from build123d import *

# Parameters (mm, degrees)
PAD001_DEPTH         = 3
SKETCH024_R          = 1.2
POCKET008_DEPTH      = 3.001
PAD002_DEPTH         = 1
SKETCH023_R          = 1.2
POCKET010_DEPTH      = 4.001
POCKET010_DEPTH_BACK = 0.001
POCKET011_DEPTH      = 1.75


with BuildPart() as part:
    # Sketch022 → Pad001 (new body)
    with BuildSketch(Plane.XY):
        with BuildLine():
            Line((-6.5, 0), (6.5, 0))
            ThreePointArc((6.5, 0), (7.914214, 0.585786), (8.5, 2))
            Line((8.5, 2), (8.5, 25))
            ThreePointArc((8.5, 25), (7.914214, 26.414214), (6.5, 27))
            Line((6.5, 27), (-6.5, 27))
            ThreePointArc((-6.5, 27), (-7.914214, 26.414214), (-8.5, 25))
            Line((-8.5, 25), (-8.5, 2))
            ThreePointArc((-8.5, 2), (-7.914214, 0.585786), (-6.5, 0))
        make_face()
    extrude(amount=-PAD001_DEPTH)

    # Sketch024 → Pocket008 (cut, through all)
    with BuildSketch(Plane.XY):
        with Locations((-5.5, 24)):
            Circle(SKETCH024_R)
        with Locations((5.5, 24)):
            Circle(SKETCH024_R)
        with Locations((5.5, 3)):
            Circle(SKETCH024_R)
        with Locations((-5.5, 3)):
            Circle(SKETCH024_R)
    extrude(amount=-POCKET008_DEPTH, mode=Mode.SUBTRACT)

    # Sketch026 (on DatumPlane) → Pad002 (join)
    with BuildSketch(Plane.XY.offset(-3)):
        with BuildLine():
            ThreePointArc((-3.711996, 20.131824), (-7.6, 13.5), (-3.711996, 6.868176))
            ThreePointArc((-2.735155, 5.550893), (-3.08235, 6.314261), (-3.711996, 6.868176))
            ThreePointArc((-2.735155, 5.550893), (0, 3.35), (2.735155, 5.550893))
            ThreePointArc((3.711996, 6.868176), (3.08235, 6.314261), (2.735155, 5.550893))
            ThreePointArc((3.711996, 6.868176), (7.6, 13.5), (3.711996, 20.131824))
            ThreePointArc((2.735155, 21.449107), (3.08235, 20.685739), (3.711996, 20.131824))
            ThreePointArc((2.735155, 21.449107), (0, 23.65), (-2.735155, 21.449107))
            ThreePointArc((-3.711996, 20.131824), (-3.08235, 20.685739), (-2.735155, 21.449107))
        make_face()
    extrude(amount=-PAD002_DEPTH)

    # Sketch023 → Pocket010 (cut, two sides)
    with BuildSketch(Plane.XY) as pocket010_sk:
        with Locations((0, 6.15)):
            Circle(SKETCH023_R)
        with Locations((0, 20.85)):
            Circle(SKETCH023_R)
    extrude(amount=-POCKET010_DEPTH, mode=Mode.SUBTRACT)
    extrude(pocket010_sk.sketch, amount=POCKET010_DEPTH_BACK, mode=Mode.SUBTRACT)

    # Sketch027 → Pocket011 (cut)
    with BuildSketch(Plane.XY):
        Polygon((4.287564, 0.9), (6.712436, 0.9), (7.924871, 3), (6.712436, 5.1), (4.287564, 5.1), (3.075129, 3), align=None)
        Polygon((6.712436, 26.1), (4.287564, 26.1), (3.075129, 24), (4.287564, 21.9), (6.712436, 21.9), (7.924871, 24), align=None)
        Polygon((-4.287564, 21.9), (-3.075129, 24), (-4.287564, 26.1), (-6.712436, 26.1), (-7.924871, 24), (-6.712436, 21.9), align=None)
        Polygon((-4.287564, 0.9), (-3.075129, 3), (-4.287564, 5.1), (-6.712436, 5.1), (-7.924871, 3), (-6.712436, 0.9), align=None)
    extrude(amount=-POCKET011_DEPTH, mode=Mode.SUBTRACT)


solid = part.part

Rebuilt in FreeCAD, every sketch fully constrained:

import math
import FreeCAD as App
import Part
import Sketcher

V = App.Vector
Q = App.Units.Quantity

doc = App.newDocument("Part")
params = doc.addObject("Spreadsheet::Sheet", "Params")
for row, (alias, value) in enumerate([
    ("sketch1_radius", "1.999999 mm"),
    ("sketch1_width", "13 mm"),
    ("sketch1_height", "23 mm"),
    ("pad1_length", "3 mm"),
    ("sketch2_diameter", "2.4 mm"),
    ("sketch3_radius", "2 mm"),
    ("sketch3_radius2", "7.6 mm"),
    ("sketch3_radius3", "2.8 mm"),
    ("pad2_length", "1 mm"),
    ("sketch4_diameter", "2.4 mm"),
    ("pocket3_length", "1.75 mm"),
], start=1):
    params.set(f"A{row}", alias)
    params.set(f"B{row}", "=" + value)
    params.setAlias(f"B{row}", alias)

body = doc.addObject("PartDesign::Body", "Body")

# Sketch on XY plane
sketch1 = doc.addObject("Sketcher::SketchObject", "Sketch")
body.addObject(sketch1)
sketch1.AttachmentSupport = (doc.XY_Plane, [""])
sketch1.MapMode = "FlatFace"
sketch1.addGeometry([
    Part.LineSegment(V(-6.5, 0, 0), V(6.5, 0, 0)),  # 0
    Part.ArcOfCircle(Part.Circle(V(6.5, 2, 0), V(0, 0, 1), 2), math.radians(-90), math.radians(0)),  # 1
    Part.LineSegment(V(8.5, 2, 0), V(8.5, 25, 0)),  # 2
    Part.ArcOfCircle(Part.Circle(V(6.5, 25, 0), V(0, 0, 1), 2), math.radians(0), math.radians(90)),  # 3
    Part.LineSegment(V(6.5, 27, 0), V(-6.5, 27, 0)),  # 4
    Part.ArcOfCircle(Part.Circle(V(-6.5, 25, 0), V(0, 0, 1), 2), math.radians(90), math.radians(180)),  # 5
    Part.LineSegment(V(-8.5, 25, 0), V(-8.5, 2, 0)),  # 6
    Part.ArcOfCircle(Part.Circle(V(-6.5, 2, 0), V(0, 0, 1), 2), math.radians(180), math.radians(270)),  # 7
], False)
sketch1.addConstraint([
    Sketcher.Constraint("Tangent", 0, 2, 1, 1),
    Sketcher.Constraint("Tangent", 1, 2, 2, 1),
    Sketcher.Constraint("Tangent", 2, 2, 3, 1),
    Sketcher.Constraint("Tangent", 3, 2, 4, 1),
    Sketcher.Constraint("Tangent", 4, 2, 5, 1),
    Sketcher.Constraint("Tangent", 5, 2, 6, 1),
    Sketcher.Constraint("Tangent", 6, 2, 7, 1),
    Sketcher.Constraint("Tangent", 7, 2, 0, 1),
    Sketcher.Constraint("Horizontal", 0),
    Sketcher.Constraint("Vertical", 2),
    Sketcher.Constraint("Horizontal", 4),
    Sketcher.Constraint("Vertical", 6),
    Sketcher.Constraint("Equal", 1, 3),
    Sketcher.Constraint("Equal", 3, 5),
    Sketcher.Constraint("Equal", 5, 7),
    Sketcher.Constraint("Symmetric", 0, 2, 7, 2, -1, 1),
    Sketcher.Constraint("Radius", 1, 1.999999),
    Sketcher.Constraint("DistanceX", 0, 1, 0, 2, 13.0),
    Sketcher.Constraint("DistanceY", 2, 1, 2, 2, 23.0),
])
sketch1.setExpression("Constraints[16]", "Params.sketch1_radius")
sketch1.setExpression("Constraints[17]", "Params.sketch1_width")
sketch1.setExpression("Constraints[18]", "Params.sketch1_height")
pad1 = doc.addObject("PartDesign::Pad", "Pad")
body.addObject(pad1)
pad1.Profile = sketch1
pad1.setExpression("Length", "Params.pad1_length")
pad1.Reversed = True

# Sketch on XY plane
sketch2 = doc.addObject("Sketcher::SketchObject", "Sketch001")
body.addObject(sketch2)
sketch2.AttachmentSupport = (doc.XY_Plane, [""])
sketch2.MapMode = "FlatFace"
sketch2.addGeometry([
    Part.Circle(V(-5.5, 24, 0), V(0, 0, 1), 1.2),
    Part.Circle(V(5.5, 24, 0), V(0, 0, 1), 1.2),
    Part.Circle(V(5.5, 3, 0), V(0, 0, 1), 1.2),
    Part.Circle(V(-5.5, 3, 0), V(0, 0, 1), 1.2),
], False)
sketch2.addConstraint([
    Sketcher.Constraint("Equal", 0, 1),
    Sketcher.Constraint("Equal", 1, 2),
    Sketcher.Constraint("Equal", 2, 3),
    Sketcher.Constraint("Symmetric", 0, 3, 1, 3, -2),
    Sketcher.Constraint("Symmetric", 2, 3, 3, 3, -2),
    Sketcher.Constraint("Vertical", 1, 3, 2, 3),
    Sketcher.Constraint("Diameter", 0, 2.4),
    Sketcher.Constraint("DistanceY", -1, 1, 0, 3, 24.0),
    Sketcher.Constraint("DistanceY", -1, 1, 2, 3, 3.0),
    Sketcher.Constraint("DistanceX", 0, 3, 1, 3, 11.0),
])
sketch2.setExpression("Constraints[6]", "Params.sketch2_diameter")
pocket1 = doc.addObject("PartDesign::Pocket", "Pocket")
body.addObject(pocket1)
pocket1.Profile = sketch2
pocket1.Type = "ThroughAll"

# Sketch on XY plane
sketch3 = doc.addObject("Sketcher::SketchObject", "Sketch002")
body.addObject(sketch3)
sketch3.AttachmentSupport = (doc.XY_Plane, [""])
sketch3.MapMode = "FlatFace"
sketch3.AttachmentOffset = App.Placement(V(0, 0, -3), App.Rotation())
sketch3.addGeometry([
    Part.ArcOfCircle(Part.Circle(V(0, 13.5, 0), V(0, 0, 1), 7.6), math.radians(119), math.radians(241)),  # 0
    Part.ArcOfCircle(Part.Circle(V(-4.7, 5.1, 0), V(0, 0, 1), 2), math.radians(12), math.radians(61)),  # 1
    Part.ArcOfCircle(Part.Circle(V(0, 6.2, 0), V(0, 0, 1), 2.8), math.radians(-168), math.radians(-12)),  # 2
    Part.ArcOfCircle(Part.Circle(V(4.7, 5.1, 0), V(0, 0, 1), 2), math.radians(119), math.radians(168)),  # 3
    Part.ArcOfCircle(Part.Circle(V(0, 13.5, 0), V(0, 0, 1), 7.6), math.radians(-61), math.radians(61)),  # 4
    Part.ArcOfCircle(Part.Circle(V(4.7, 21.9, 0), V(0, 0, 1), 2), math.radians(-168), math.radians(-119)),  # 5
    Part.ArcOfCircle(Part.Circle(V(0, 20.8, 0), V(0, 0, 1), 2.8), math.radians(12), math.radians(168)),  # 6
    Part.ArcOfCircle(Part.Circle(V(-4.7, 21.9, 0), V(0, 0, 1), 2), math.radians(-61), math.radians(-12)),  # 7
], False)
sketch3.addConstraint([
    Sketcher.Constraint("Tangent", 0, 2, 1, 2),
    Sketcher.Constraint("Tangent", 1, 1, 2, 1),
    Sketcher.Constraint("Tangent", 2, 2, 3, 2),
    Sketcher.Constraint("Tangent", 3, 1, 4, 1),
    Sketcher.Constraint("Tangent", 4, 2, 5, 2),
    Sketcher.Constraint("Tangent", 5, 1, 6, 1),
    Sketcher.Constraint("Tangent", 6, 2, 7, 2),
    Sketcher.Constraint("Tangent", 7, 1, 0, 1),
    Sketcher.Constraint("Coincident", 4, 3, 0, 3),
    Sketcher.Constraint("Equal", 1, 3),
    Sketcher.Constraint("Equal", 0, 4),
    Sketcher.Constraint("Equal", 3, 5),
    Sketcher.Constraint("Equal", 2, 6),
    Sketcher.Constraint("Equal", 5, 7),
    Sketcher.Constraint("Symmetric", 1, 3, 3, 3, -2),
    Sketcher.Constraint("PointOnObject", 6, 3, -2),
    Sketcher.Constraint("Vertical", 3, 3, 5, 3),
    Sketcher.Constraint("Radius", 1, 2.0),
    Sketcher.Constraint("Radius", 0, 7.6),
    Sketcher.Constraint("Radius", 2, 2.8),
    Sketcher.Constraint("DistanceY", -1, 1, 0, 3, 13.5),
    Sketcher.Constraint("DistanceY", 2, 3, 6, 3, 14.699999),
])
sketch3.setExpression("Constraints[17]", "Params.sketch3_radius")
sketch3.setExpression("Constraints[18]", "Params.sketch3_radius2")
sketch3.setExpression("Constraints[19]", "Params.sketch3_radius3")
pad2 = doc.addObject("PartDesign::Pad", "Pad001")
body.addObject(pad2)
pad2.Profile = sketch3
pad2.setExpression("Length", "Params.pad2_length")
pad2.Reversed = True

# Sketch on XY plane
sketch4 = doc.addObject("Sketcher::SketchObject", "Sketch003")
body.addObject(sketch4)
sketch4.AttachmentSupport = (doc.XY_Plane, [""])
sketch4.MapMode = "FlatFace"
sketch4.addGeometry([
    Part.Circle(V(0, 6.2, 0), V(0, 0, 1), 1.2),
    Part.Circle(V(0, 20.9, 0), V(0, 0, 1), 1.2),
], False)
sketch4.addConstraint([
    Sketcher.Constraint("Equal", 0, 1),
    Sketcher.Constraint("PointOnObject", 0, 3, -2),
    Sketcher.Constraint("PointOnObject", 1, 3, -2),
    Sketcher.Constraint("Diameter", 0, 2.4),
    Sketcher.Constraint("DistanceY", 0, 3, 1, 3, 14.7),
    Sketcher.Constraint("DistanceY", -1, 1, 0, 3, 6.15),
])
sketch4.setExpression("Constraints[3]", "Params.sketch4_diameter")
pocket2 = doc.addObject("PartDesign::Pocket", "Pocket001")
body.addObject(pocket2)
pocket2.Profile = sketch4
pocket2.Type = "ThroughAll"
pocket2.Midplane = True

# Sketch on XY plane
sketch5 = doc.addObject("Sketcher::SketchObject", "Sketch004")
body.addObject(sketch5)
sketch5.AttachmentSupport = (doc.XY_Plane, [""])
sketch5.MapMode = "FlatFace"
sketch5.addGeometry([
    Part.LineSegment(V(4.3, 0.9, 0), V(6.7, 0.9, 0)),  # 0
    Part.LineSegment(V(6.7, 0.9, 0), V(7.9, 3, 0)),  # 1
    Part.LineSegment(V(7.9, 3, 0), V(6.7, 5.1, 0)),  # 2
    Part.LineSegment(V(6.7, 5.1, 0), V(4.3, 5.1, 0)),  # 3
    Part.LineSegment(V(4.3, 5.1, 0), V(3.1, 3, 0)),  # 4
    Part.LineSegment(V(3.1, 3, 0), V(4.3, 0.9, 0)),  # 5
    Part.LineSegment(V(6.7, 26.1, 0), V(4.3, 26.1, 0)),  # 6
    Part.LineSegment(V(4.3, 26.1, 0), V(3.1, 24, 0)),  # 7
    Part.LineSegment(V(3.1, 24, 0), V(4.3, 21.9, 0)),  # 8
    Part.LineSegment(V(4.3, 21.9, 0), V(6.7, 21.9, 0)),  # 9
    Part.LineSegment(V(6.7, 21.9, 0), V(7.9, 24, 0)),  # 10
    Part.LineSegment(V(7.9, 24, 0), V(6.7, 26.1, 0)),  # 11
    Part.LineSegment(V(-4.3, 21.9, 0), V(-3.1, 24, 0)),  # 12
    Part.LineSegment(V(-3.1, 24, 0), V(-4.3, 26.1, 0)),  # 13
    Part.LineSegment(V(-4.3, 26.1, 0), V(-6.7, 26.1, 0)),  # 14
    Part.LineSegment(V(-6.7, 26.1, 0), V(-7.9, 24, 0)),  # 15
    Part.LineSegment(V(-7.9, 24, 0), V(-6.7, 21.9, 0)),  # 16
    Part.LineSegment(V(-6.7, 21.9, 0), V(-4.3, 21.9, 0)),  # 17
    Part.LineSegment(V(-4.3, 0.9, 0), V(-3.1, 3, 0)),  # 18
    Part.LineSegment(V(-3.1, 3, 0), V(-4.3, 5.1, 0)),  # 19
    Part.LineSegment(V(-4.3, 5.1, 0), V(-6.7, 5.1, 0)),  # 20
    Part.LineSegment(V(-6.7, 5.1, 0), V(-7.9, 3, 0)),  # 21
    Part.LineSegment(V(-7.9, 3, 0), V(-6.7, 0.9, 0)),  # 22
    Part.LineSegment(V(-6.7, 0.9, 0), V(-4.3, 0.9, 0)),  # 23
], False)
sketch5.addConstraint([
    Sketcher.Constraint("Coincident", 0, 2, 1, 1),
    Sketcher.Constraint("Coincident", 1, 2, 2, 1),
    Sketcher.Constraint("Coincident", 2, 2, 3, 1),
    Sketcher.Constraint("Coincident", 3, 2, 4, 1),
    Sketcher.Constraint("Coincident", 4, 2, 5, 1),
    Sketcher.Constraint("Coincident", 5, 2, 0, 1),
    Sketcher.Constraint("Coincident", 6, 2, 7, 1),
    Sketcher.Constraint("Coincident", 7, 2, 8, 1),
    Sketcher.Constraint("Coincident", 8, 2, 9, 1),
    Sketcher.Constraint("Coincident", 9, 2, 10, 1),
    Sketcher.Constraint("Coincident", 10, 2, 11, 1),
    Sketcher.Constraint("Coincident", 11, 2, 6, 1),
    Sketcher.Constraint("Coincident", 12, 2, 13, 1),
    Sketcher.Constraint("Coincident", 13, 2, 14, 1),
    Sketcher.Constraint("Coincident", 14, 2, 15, 1),
    Sketcher.Constraint("Coincident", 15, 2, 16, 1),
    Sketcher.Constraint("Coincident", 16, 2, 17, 1),
    Sketcher.Constraint("Coincident", 17, 2, 12, 1),
    Sketcher.Constraint("Coincident", 18, 2, 19, 1),
    Sketcher.Constraint("Coincident", 19, 2, 20, 1),
    Sketcher.Constraint("Coincident", 20, 2, 21, 1),
    Sketcher.Constraint("Coincident", 21, 2, 22, 1),
    Sketcher.Constraint("Coincident", 22, 2, 23, 1),
    Sketcher.Constraint("Coincident", 23, 2, 18, 1),
    Sketcher.Constraint("Horizontal", 0),
    Sketcher.Constraint("Horizontal", 3),
    Sketcher.Constraint("Horizontal", 6),
    Sketcher.Constraint("Horizontal", 9),
    Sketcher.Constraint("Horizontal", 14),
    Sketcher.Constraint("Horizontal", 17),
    Sketcher.Constraint("Horizontal", 20),
    Sketcher.Constraint("Horizontal", 23),
    Sketcher.Constraint("Symmetric", 7, 2, 12, 2, -2),
    Sketcher.Constraint("Symmetric", 6, 2, 13, 2, -2),
    Sketcher.Constraint("Symmetric", 10, 2, 15, 2, -2),
    Sketcher.Constraint("Symmetric", 9, 2, 16, 2, -2),
    Sketcher.Constraint("Symmetric", 4, 2, 18, 2, -2),
    Sketcher.Constraint("Symmetric", 3, 2, 19, 2, -2),
    Sketcher.Constraint("Symmetric", 1, 2, 21, 2, -2),
    Sketcher.Constraint("Symmetric", 0, 2, 22, 2, -2),
    Sketcher.Constraint("Parallel", 1, 4),
    Sketcher.Constraint("Parallel", 2, 5),
    Sketcher.Constraint("Parallel", 4, 7),
    Sketcher.Constraint("Parallel", 5, 8),
    Sketcher.Constraint("Parallel", 7, 10),
    Sketcher.Constraint("Parallel", 8, 11),
    Sketcher.Constraint("Parallel", 10, 12),
    Sketcher.Constraint("Parallel", 11, 13),
    Sketcher.Constraint("Parallel", 12, 15),
    Sketcher.Constraint("Parallel", 15, 18),
    Sketcher.Constraint("Parallel", 18, 21),
    Sketcher.Constraint("Horizontal", 1, 2, 4, 2),
    Sketcher.Constraint("Horizontal", 7, 2, 10, 2),
    Sketcher.Constraint("Vertical", 0, 2, 2, 2),
    Sketcher.Constraint("Vertical", 5, 2, 6, 2),
    Sketcher.Constraint("Vertical", 4, 2, 7, 2),
    Sketcher.Constraint("Vertical", 6, 2, 8, 2),
    Sketcher.Constraint("Vertical", 2, 2, 9, 2),
    Sketcher.Constraint("Angle", 1, Q("60.000012 deg")),
    Sketcher.Constraint("DistanceY", -1, 1, 1, 2, 3.0),
    Sketcher.Constraint("DistanceY", -1, 1, 7, 2, 24.0),
    Sketcher.Constraint("DistanceX", 13, 2, 11, 2, 11.0),
    Sketcher.Constraint("DistanceY", -1, 1, 0, 2, 0.9),
    Sketcher.Constraint("DistanceX", 0, 1, 0, 2, 2.424872),
])
pocket3 = doc.addObject("PartDesign::Pocket", "Pocket002")
body.addObject(pocket3)
pocket3.Profile = sketch5
pocket3.setExpression("Length", "Params.pocket3_length")

doc.recompute()
